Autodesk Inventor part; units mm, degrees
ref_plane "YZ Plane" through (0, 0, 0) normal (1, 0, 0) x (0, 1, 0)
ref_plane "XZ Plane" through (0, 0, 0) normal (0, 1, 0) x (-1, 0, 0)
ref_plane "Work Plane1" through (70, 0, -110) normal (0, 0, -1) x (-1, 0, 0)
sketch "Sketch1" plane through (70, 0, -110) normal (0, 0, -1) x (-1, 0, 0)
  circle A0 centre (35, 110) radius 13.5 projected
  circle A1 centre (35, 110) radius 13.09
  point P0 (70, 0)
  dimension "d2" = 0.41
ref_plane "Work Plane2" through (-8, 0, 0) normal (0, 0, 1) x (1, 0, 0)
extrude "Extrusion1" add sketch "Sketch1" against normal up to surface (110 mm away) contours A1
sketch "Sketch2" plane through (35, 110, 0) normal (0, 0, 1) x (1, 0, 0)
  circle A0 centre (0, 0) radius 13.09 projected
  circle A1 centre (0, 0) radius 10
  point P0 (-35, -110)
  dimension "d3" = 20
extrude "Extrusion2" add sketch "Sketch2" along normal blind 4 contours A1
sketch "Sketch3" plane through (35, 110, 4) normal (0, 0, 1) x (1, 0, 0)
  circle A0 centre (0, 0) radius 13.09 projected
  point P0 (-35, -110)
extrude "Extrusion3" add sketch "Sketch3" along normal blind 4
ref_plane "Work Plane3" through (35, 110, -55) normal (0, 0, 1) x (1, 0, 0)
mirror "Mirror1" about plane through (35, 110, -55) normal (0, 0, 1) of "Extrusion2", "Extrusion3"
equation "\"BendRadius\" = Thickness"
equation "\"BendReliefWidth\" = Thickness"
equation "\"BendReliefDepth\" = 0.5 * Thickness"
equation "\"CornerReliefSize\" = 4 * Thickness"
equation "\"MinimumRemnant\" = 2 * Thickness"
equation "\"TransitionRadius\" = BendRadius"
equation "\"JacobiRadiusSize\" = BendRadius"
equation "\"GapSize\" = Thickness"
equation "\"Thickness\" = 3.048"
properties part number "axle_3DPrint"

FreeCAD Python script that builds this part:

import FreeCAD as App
import Part
import Sketcher
from FreeCAD import Vector

doc = App.newDocument("Part")
body = doc.addObject("PartDesign::Body", "Body")

# Sketch on XY plane
sketch1 = doc.addObject("Sketcher::SketchObject", "Sketch")
body.addObject(sketch1)
sketch1.AttachmentSupport = (doc.XY_Plane, [""])
sketch1.MapMode = "FlatFace"
sketch1.AttachmentOffset = App.Placement(Vector(0, 0, -110), App.Rotation())
sketch1.addGeometry(Part.Circle(Vector(35, 110, 0), Vector(0, 0, 1), 13), False)
sketch1.addConstraint([
    Sketcher.Constraint("Diameter", 0, 26.18),
    Sketcher.Constraint("DistanceX", -1, 1, 0, 3, 35.0),
    Sketcher.Constraint("DistanceY", -1, 1, 0, 3, 110.0),
])
pad1 = doc.addObject("PartDesign::Pad", "Pad")
body.addObject(pad1)
pad1.Profile = sketch1
pad1.Length = 110

# Sketch on XY plane
sketch2 = doc.addObject("Sketcher::SketchObject", "Sketch001")
body.addObject(sketch2)
sketch2.AttachmentSupport = (doc.XY_Plane, [""])
sketch2.MapMode = "FlatFace"
sketch2.addGeometry(Part.Circle(Vector(35, 110, 0), Vector(0, 0, 1), 10), False)
sketch2.addConstraint([
    Sketcher.Constraint("Diameter", 0, 20.0),
    Sketcher.Constraint("DistanceX", -1, 1, 0, 3, 35.0),
    Sketcher.Constraint("DistanceY", -1, 1, 0, 3, 110.0),
])
pad2 = doc.addObject("PartDesign::Pad", "Pad001")
body.addObject(pad2)
pad2.Profile = sketch2
pad2.Length = 4

# Sketch on XY plane
sketch3 = doc.addObject("Sketcher::SketchObject", "Sketch002")
body.addObject(sketch3)
sketch3.AttachmentSupport = (doc.XY_Plane, [""])
sketch3.MapMode = "FlatFace"
sketch3.AttachmentOffset = App.Placement(Vector(0, 0, 4), App.Rotation())
sketch3.addGeometry(Part.Circle(Vector(35, 110, 0), Vector(0, 0, 1), 13), False)
sketch3.addConstraint([
    Sketcher.Constraint("Diameter", 0, 26.18),
    Sketcher.Constraint("DistanceX", -1, 1, 0, 3, 35.0),
    Sketcher.Constraint("DistanceY", -1, 1, 0, 3, 110.0),
])
pad3 = doc.addObject("PartDesign::Pad", "Pad002")
body.addObject(pad3)
pad3.Profile = sketch3
pad3.Length = 4
doc.recompute()

datumplane = doc.addObject("PartDesign::Plane", "DatumPlane")
body.addObject(datumplane)
datumplane.AttachmentSupport = (doc.XY_Plane, [""])
datumplane.MapMode = "FlatFace"
datumplane.AttachmentOffset = App.Placement(Vector(0, 0, -55), App.Rotation())
mirrored = doc.addObject("PartDesign::Mirrored", "Mirrored")
body.addObject(mirrored)
mirrored.Originals = [pad2, pad3]
mirrored.MirrorPlane = (datumplane, [""])
body.Tip = mirrored

doc.recompute()
